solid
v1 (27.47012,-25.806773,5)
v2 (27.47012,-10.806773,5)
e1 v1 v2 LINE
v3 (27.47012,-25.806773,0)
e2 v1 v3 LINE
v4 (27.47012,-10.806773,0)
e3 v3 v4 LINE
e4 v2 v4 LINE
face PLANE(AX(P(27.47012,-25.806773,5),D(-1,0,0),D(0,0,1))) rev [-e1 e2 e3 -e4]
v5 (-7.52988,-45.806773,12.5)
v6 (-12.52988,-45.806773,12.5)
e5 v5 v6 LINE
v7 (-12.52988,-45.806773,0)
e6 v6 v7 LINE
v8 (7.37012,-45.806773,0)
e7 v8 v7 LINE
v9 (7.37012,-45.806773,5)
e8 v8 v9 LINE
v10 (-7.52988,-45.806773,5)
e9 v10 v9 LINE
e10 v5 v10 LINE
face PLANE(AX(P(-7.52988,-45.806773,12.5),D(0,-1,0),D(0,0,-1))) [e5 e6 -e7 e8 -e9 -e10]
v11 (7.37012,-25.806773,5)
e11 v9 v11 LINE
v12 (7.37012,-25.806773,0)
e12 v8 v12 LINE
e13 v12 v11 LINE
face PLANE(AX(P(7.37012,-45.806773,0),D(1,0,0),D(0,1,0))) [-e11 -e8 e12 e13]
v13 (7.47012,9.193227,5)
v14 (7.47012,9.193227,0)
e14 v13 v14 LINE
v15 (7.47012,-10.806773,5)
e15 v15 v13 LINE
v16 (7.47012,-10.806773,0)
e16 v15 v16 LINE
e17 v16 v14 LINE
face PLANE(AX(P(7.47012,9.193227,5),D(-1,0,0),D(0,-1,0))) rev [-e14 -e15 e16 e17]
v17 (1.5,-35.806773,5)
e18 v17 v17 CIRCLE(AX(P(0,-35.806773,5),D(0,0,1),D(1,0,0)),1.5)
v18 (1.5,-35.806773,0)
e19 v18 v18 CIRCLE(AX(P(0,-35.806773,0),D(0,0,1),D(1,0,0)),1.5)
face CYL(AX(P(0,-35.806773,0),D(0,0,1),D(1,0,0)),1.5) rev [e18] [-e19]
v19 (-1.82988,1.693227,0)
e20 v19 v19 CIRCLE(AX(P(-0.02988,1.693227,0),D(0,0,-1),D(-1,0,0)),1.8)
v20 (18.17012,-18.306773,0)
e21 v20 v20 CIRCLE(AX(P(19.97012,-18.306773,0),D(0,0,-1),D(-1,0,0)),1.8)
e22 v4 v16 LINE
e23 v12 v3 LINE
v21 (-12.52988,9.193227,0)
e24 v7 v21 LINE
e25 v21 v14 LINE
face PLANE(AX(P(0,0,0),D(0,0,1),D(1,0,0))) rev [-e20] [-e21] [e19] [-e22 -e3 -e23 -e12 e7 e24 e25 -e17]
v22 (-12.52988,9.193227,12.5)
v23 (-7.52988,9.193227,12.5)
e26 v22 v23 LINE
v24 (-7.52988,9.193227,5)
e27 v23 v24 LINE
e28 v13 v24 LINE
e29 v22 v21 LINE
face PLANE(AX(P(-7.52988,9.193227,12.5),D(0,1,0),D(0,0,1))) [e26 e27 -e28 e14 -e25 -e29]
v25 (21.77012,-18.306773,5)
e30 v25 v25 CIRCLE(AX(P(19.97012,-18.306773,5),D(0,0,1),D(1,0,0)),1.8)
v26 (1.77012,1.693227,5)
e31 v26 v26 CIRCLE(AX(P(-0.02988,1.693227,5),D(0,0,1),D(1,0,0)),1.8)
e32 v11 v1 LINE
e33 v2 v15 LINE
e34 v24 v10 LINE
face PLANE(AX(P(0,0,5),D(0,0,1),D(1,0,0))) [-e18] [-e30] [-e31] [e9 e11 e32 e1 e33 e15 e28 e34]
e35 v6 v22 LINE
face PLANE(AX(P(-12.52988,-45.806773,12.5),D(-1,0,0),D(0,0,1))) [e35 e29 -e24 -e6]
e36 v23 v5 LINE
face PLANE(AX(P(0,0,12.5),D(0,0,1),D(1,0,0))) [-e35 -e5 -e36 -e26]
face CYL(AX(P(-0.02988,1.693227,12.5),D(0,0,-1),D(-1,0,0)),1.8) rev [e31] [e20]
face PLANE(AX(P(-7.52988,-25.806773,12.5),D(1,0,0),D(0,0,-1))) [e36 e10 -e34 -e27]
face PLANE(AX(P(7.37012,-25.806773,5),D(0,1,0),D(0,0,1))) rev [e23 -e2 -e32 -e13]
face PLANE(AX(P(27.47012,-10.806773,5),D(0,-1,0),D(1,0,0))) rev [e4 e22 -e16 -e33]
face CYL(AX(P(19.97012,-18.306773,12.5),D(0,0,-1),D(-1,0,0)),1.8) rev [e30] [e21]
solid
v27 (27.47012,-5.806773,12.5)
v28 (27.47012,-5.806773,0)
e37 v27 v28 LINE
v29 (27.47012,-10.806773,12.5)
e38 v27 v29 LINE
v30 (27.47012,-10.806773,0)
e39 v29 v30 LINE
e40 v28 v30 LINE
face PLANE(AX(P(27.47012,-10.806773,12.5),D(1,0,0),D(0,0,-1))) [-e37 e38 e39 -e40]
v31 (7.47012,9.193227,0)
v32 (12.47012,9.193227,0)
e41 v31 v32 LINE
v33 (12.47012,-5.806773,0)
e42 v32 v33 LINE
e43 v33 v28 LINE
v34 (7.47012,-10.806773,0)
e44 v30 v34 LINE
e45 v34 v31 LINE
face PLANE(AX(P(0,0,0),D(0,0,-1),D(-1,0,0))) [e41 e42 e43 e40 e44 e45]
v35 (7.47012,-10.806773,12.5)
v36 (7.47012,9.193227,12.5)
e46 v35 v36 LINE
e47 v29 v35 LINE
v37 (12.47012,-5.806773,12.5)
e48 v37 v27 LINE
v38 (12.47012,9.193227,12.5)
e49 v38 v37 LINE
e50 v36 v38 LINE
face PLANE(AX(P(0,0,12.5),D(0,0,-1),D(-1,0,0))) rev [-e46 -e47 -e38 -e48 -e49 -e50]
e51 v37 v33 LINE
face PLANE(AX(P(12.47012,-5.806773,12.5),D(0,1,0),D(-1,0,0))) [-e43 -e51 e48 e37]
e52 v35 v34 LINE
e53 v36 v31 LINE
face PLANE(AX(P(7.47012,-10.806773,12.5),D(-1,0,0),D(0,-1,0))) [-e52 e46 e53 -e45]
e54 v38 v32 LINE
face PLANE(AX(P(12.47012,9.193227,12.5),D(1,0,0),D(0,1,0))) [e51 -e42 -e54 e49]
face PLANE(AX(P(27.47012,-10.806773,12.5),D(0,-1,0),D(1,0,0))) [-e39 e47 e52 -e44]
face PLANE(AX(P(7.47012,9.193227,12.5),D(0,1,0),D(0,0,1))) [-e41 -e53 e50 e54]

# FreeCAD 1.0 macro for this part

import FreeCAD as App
import Part
import Sketcher

doc = App.newDocument("Part")
body = doc.addObject("PartDesign::Body", "Body")

sketch1 = doc.addObject("Sketcher::SketchObject", "Sketch")
body.addObject(sketch1)
sketch1.AttachmentSupport = (doc.XY_Plane, [""])
sketch1.MapMode = "FlatFace"
sketch1.addGeometry(Part.LineSegment(App.Vector(27, -26, 0), App.Vector(27, -11, 0)), False)
sketch1.addGeometry(Part.LineSegment(App.Vector(27, -11, 0), App.Vector(7, -11, 0)), False)
sketch1.addGeometry(Part.LineSegment(App.Vector(7, -11, 0), App.Vector(7, 9, 0)), False)
sketch1.addGeometry(Part.LineSegment(App.Vector(7, 9, 0), App.Vector(-8, 9, 0)), False)
sketch1.addGeometry(Part.LineSegment(App.Vector(-8, 9, 0), App.Vector(-8, -26, 0)), False)
sketch1.addGeometry(Part.LineSegment(App.Vector(-8, -26, 0), App.Vector(27, -26, 0)), False)
sketch1.addConstraint(Sketcher.Constraint("Coincident", 0, 2, 1, 1))
sketch1.addConstraint(Sketcher.Constraint("Coincident", 1, 2, 2, 1))
sketch1.addConstraint(Sketcher.Constraint("Coincident", 2, 2, 3, 1))
sketch1.addConstraint(Sketcher.Constraint("Coincident", 3, 2, 4, 1))
sketch1.addConstraint(Sketcher.Constraint("Coincident", 4, 2, 5, 1))
sketch1.addConstraint(Sketcher.Constraint("Coincident", 5, 2, 0, 1))
sketch1.addConstraint(Sketcher.Constraint("Vertical", 0))
sketch1.addConstraint(Sketcher.Constraint("Horizontal", 1))
sketch1.addConstraint(Sketcher.Constraint("Vertical", 2))
sketch1.addConstraint(Sketcher.Constraint("Horizontal", 3))
sketch1.addConstraint(Sketcher.Constraint("Vertical", 4))
sketch1.addConstraint(Sketcher.Constraint("Horizontal", 5))
sketch1.addConstraint(Sketcher.Constraint("Equal", 3, 0))
sketch1.addConstraint(Sketcher.Constraint("Equal", 1, 2))
sketch1.addConstraint(Sketcher.Constraint("DistanceX", 1, 2, 1, 1, 20.0))
sketch1.addConstraint(Sketcher.Constraint("DistanceX", 3, 2, 3, 1, 15.0))
sketch1.addConstraint(Sketcher.Constraint("DistanceX", -1, 1, 0, 2, 27.47012))
sketch1.addConstraint(Sketcher.Constraint("DistanceY", 0, 2, -1, 1, 10.806773))
pad1 = doc.addObject("PartDesign::Pad", "Pad")
body.addObject(pad1)
pad1.Profile = sketch1
pad1.Length = 5

sketch2 = doc.addObject("Sketcher::SketchObject", "Sketch001")
body.addObject(sketch2)
sketch2.AttachmentSupport = (doc.XY_Plane, [""])
sketch2.MapMode = "FlatFace"
sketch2.addGeometry(Part.Circle(App.Vector(0, 1.7, 0), App.Vector(0, 0, 1), 1.8), False)
sketch2.addGeometry(Part.Circle(App.Vector(20, -18.3, 0), App.Vector(0, 0, 1), 1.8), False)
sketch2.addConstraint(Sketcher.Constraint("Equal", 0, 1))
sketch2.addConstraint(Sketcher.Constraint("Diameter", 0, 3.6))
sketch2.addConstraint(Sketcher.Constraint("DistanceX", 0, 3, 1, 3, 20.0))
sketch2.addConstraint(Sketcher.Constraint("DistanceY", 1, 3, 0, 3, 20.0))
sketch2.addConstraint(Sketcher.Constraint("DistanceX", 0, 3, -1, 1, 0.02988))
sketch2.addConstraint(Sketcher.Constraint("DistanceY", -1, 1, 0, 3, 1.693227))
pocket1 = doc.addObject("PartDesign::Pocket", "Pocket")
body.addObject(pocket1)
pocket1.Profile = sketch2
pocket1.Type = "ThroughAll"
pocket1.Reversed = True
body2 = doc.addObject("PartDesign::Body", "Body001")

sketch3 = doc.addObject("Sketcher::SketchObject", "Sketch002")
body2.addObject(sketch3)
sketch3.AttachmentSupport = (doc.getObject("XY_Plane001"), [""])
sketch3.MapMode = "FlatFace"
sketch3.addGeometry(Part.LineSegment(App.Vector(7.5, 9.2, 0), App.Vector(12.5, 9.2, 0)), False)
sketch3.addGeometry(Part.LineSegment(App.Vector(12.5, 9.2, 0), App.Vector(12.5, -5.8, 0)), False)
sketch3.addGeometry(Part.LineSegment(App.Vector(12.5, -5.8, 0), App.Vector(27.5, -5.8, 0)), False)
sketch3.addGeometry(Part.LineSegment(App.Vector(27.5, -5.8, 0), App.Vector(27.5, -10.8, 0)), False)
sketch3.addGeometry(Part.LineSegment(App.Vector(27.5, -10.8, 0), App.Vector(7.5, -10.8, 0)), False)
sketch3.addGeometry(Part.LineSegment(App.Vector(7.5, -10.8, 0), App.Vector(7.5, 9.2, 0)), False)
sketch3.addConstraint(Sketcher.Constraint("Coincident", 0, 2, 1, 1))
sketch3.addConstraint(Sketcher.Constraint("Coincident", 1, 2, 2, 1))
sketch3.addConstraint(Sketcher.Constraint("Coincident", 2, 2, 3, 1))
sketch3.addConstraint(Sketcher.Constraint("Coincident", 3, 2, 4, 1))
sketch3.addConstraint(Sketcher.Constraint("Coincident", 4, 2, 5, 1))
sketch3.addConstraint(Sketcher.Constraint("Coincident", 5, 2, 0, 1))
sketch3.addConstraint(Sketcher.Constraint("Horizontal", 0))
sketch3.addConstraint(Sketcher.Constraint("Vertical", 1))
sketch3.addConstraint(Sketcher.Constraint("Horizontal", 2))
sketch3.addConstraint(Sketcher.Constraint("Vertical", 3))
sketch3.addConstraint(Sketcher.Constraint("Horizontal", 4))
sketch3.addConstraint(Sketcher.Constraint("Vertical", 5))
sketch3.addConstraint(Sketcher.Constraint("Equal", 2, 1))
sketch3.addConstraint(Sketcher.Constraint("Equal", 0, 3))
sketch3.addConstraint(Sketcher.Constraint("DistanceX", 0, 1, 0, 2, 5.0))
sketch3.addConstraint(Sketcher.Constraint("DistanceX", 2, 1, 2, 2, 15.0))
sketch3.addConstraint(Sketcher.Constraint("DistanceX", -1, 1, 0, 2, 12.47012))
sketch3.addConstraint(Sketcher.Constraint("DistanceY", -1, 1, 0, 2, 9.193227))
pad2 = doc.addObject("PartDesign::Pad", "Pad001")
body2.addObject(pad2)
pad2.Profile = sketch3
pad2.Length = 12.5
body3 = doc.addObject("PartDesign::Body", "Body002")

sketch4 = doc.addObject("Sketcher::SketchObject", "Sketch003")
body3.addObject(sketch4)
sketch4.AttachmentSupport = (doc.getObject("XY_Plane002"), [""])
sketch4.MapMode = "FlatFace"
sketch4.addGeometry(Part.LineSegment(App.Vector(-13, 9, 0), App.Vector(-8, 9, 0)), False)
sketch4.addGeometry(Part.LineSegment(App.Vector(-8, 9, 0), App.Vector(-8, -46, 0)), False)
sketch4.addGeometry(Part.LineSegment(App.Vector(-8, -46, 0), App.Vector(-13, -46, 0)), False)
sketch4.addGeometry(Part.LineSegment(App.Vector(-13, -46, 0), App.Vector(-13, 9, 0)), False)
sketch4.addConstraint(Sketcher.Constraint("Coincident", 0, 2, 1, 1))
sketch4.addConstraint(Sketcher.Constraint("Coincident", 1, 2, 2, 1))
sketch4.addConstraint(Sketcher.Constraint("Coincident", 2, 2, 3, 1))
sketch4.addConstraint(Sketcher.Constraint("Coincident", 3, 2, 0, 1))
sketch4.addConstraint(Sketcher.Constraint("Horizontal", 0))
sketch4.addConstraint(Sketcher.Constraint("Vertical", 1))
sketch4.addConstraint(Sketcher.Constraint("Horizontal", 2))
sketch4.addConstraint(Sketcher.Constraint("Vertical", 3))
sketch4.addConstraint(Sketcher.Constraint("DistanceX", 0, 1, 0, 2, 5.0))
sketch4.addConstraint(Sketcher.Constraint("DistanceY", 1, 2, 1, 1, 55.0))
sketch4.addConstraint(Sketcher.Constraint("DistanceX", 0, 2, -1, 1, 7.52988))
sketch4.addConstraint(Sketcher.Constraint("DistanceY", -1, 1, 0, 2, 9.193227))
pad3 = doc.addObject("PartDesign::Pad", "Pad002")
body3.addObject(pad3)
pad3.Profile = sketch4
pad3.Length = 12.5
doc.recompute()

boolean = doc.addObject("PartDesign::Boolean", "Boolean")
body.addObject(boolean)
boolean.Type = "Fuse"
boolean.addObjects([body3])

sketch5 = doc.addObject("Sketcher::SketchObject", "Sketch004")
body.addObject(sketch5)
sketch5.AttachmentSupport = (doc.XY_Plane, [""])
sketch5.MapMode = "FlatFace"
sketch5.AttachmentOffset = App.Placement(App.Vector(0, 0, 5), App.Rotation())
sketch5.addGeometry(Part.LineSegment(App.Vector(-8, -26, 0), App.Vector(-8, -46, 0)), False)
sketch5.addGeometry(Part.LineSegment(App.Vector(-8, -46, 0), App.Vector(7, -46, 0)), False)
sketch5.addGeometry(Part.LineSegment(App.Vector(7, -46, 0), App.Vector(7, -26, 0)), False)
sketch5.addGeometry(Part.LineSegment(App.Vector(7, -26, 0), App.Vector(-8, -26, 0)), False)
sketch5.addConstraint(Sketcher.Constraint("Coincident", 0, 2, 1, 1))
sketch5.addConstraint(Sketcher.Constraint("Coincident", 1, 2, 2, 1))
sketch5.addConstraint(Sketcher.Constraint("Coincident", 2, 2, 3, 1))
sketch5.addConstraint(Sketcher.Constraint("Coincident", 3, 2, 0, 1))
sketch5.addConstraint(Sketcher.Constraint("Vertical", 0))
sketch5.addConstraint(Sketcher.Constraint("Horizontal", 1))
sketch5.addConstraint(Sketcher.Constraint("Vertical", 2))
sketch5.addConstraint(Sketcher.Constraint("Horizontal", 3))
sketch5.addConstraint(Sketcher.Constraint("DistanceY", 0, 2, 0, 1, 20.0))
sketch5.addConstraint(Sketcher.Constraint("DistanceX", 1, 1, 1, 2, 14.9))
sketch5.addConstraint(Sketcher.Constraint("DistanceX", 0, 2, -1, 1, 7.52988))
sketch5.addConstraint(Sketcher.Constraint("DistanceY", 0, 2, -1, 1, 45.806773))
pad4 = doc.addObject("PartDesign::Pad", "Pad003")
body.addObject(pad4)
pad4.Profile = sketch5
pad4.Length = 5
pad4.Reversed = True

sketch6 = doc.addObject("Sketcher::SketchObject", "Sketch005")
body.addObject(sketch6)
sketch6.AttachmentSupport = (doc.XY_Plane, [""])
sketch6.MapMode = "FlatFace"
sketch6.AttachmentOffset = App.Placement(App.Vector(0, 0, 5), App.Rotation())
sketch6.addGeometry(Part.Circle(App.Vector(0, -35.8, 0), App.Vector(0, 0, 1), 1.5), False)
sketch6.addConstraint(Sketcher.Constraint("PointOnObject", 0, 3, -2))
sketch6.addConstraint(Sketcher.Constraint("Diameter", 0, 3.0))
sketch6.addConstraint(Sketcher.Constraint("DistanceY", 0, 3, -1, 1, 35.806773))
pocket2 = doc.addObject("PartDesign::Pocket", "Pocket001")
body.addObject(pocket2)
pocket2.Profile = sketch6
pocket2.Type = "ThroughAll"

doc.recompute()
